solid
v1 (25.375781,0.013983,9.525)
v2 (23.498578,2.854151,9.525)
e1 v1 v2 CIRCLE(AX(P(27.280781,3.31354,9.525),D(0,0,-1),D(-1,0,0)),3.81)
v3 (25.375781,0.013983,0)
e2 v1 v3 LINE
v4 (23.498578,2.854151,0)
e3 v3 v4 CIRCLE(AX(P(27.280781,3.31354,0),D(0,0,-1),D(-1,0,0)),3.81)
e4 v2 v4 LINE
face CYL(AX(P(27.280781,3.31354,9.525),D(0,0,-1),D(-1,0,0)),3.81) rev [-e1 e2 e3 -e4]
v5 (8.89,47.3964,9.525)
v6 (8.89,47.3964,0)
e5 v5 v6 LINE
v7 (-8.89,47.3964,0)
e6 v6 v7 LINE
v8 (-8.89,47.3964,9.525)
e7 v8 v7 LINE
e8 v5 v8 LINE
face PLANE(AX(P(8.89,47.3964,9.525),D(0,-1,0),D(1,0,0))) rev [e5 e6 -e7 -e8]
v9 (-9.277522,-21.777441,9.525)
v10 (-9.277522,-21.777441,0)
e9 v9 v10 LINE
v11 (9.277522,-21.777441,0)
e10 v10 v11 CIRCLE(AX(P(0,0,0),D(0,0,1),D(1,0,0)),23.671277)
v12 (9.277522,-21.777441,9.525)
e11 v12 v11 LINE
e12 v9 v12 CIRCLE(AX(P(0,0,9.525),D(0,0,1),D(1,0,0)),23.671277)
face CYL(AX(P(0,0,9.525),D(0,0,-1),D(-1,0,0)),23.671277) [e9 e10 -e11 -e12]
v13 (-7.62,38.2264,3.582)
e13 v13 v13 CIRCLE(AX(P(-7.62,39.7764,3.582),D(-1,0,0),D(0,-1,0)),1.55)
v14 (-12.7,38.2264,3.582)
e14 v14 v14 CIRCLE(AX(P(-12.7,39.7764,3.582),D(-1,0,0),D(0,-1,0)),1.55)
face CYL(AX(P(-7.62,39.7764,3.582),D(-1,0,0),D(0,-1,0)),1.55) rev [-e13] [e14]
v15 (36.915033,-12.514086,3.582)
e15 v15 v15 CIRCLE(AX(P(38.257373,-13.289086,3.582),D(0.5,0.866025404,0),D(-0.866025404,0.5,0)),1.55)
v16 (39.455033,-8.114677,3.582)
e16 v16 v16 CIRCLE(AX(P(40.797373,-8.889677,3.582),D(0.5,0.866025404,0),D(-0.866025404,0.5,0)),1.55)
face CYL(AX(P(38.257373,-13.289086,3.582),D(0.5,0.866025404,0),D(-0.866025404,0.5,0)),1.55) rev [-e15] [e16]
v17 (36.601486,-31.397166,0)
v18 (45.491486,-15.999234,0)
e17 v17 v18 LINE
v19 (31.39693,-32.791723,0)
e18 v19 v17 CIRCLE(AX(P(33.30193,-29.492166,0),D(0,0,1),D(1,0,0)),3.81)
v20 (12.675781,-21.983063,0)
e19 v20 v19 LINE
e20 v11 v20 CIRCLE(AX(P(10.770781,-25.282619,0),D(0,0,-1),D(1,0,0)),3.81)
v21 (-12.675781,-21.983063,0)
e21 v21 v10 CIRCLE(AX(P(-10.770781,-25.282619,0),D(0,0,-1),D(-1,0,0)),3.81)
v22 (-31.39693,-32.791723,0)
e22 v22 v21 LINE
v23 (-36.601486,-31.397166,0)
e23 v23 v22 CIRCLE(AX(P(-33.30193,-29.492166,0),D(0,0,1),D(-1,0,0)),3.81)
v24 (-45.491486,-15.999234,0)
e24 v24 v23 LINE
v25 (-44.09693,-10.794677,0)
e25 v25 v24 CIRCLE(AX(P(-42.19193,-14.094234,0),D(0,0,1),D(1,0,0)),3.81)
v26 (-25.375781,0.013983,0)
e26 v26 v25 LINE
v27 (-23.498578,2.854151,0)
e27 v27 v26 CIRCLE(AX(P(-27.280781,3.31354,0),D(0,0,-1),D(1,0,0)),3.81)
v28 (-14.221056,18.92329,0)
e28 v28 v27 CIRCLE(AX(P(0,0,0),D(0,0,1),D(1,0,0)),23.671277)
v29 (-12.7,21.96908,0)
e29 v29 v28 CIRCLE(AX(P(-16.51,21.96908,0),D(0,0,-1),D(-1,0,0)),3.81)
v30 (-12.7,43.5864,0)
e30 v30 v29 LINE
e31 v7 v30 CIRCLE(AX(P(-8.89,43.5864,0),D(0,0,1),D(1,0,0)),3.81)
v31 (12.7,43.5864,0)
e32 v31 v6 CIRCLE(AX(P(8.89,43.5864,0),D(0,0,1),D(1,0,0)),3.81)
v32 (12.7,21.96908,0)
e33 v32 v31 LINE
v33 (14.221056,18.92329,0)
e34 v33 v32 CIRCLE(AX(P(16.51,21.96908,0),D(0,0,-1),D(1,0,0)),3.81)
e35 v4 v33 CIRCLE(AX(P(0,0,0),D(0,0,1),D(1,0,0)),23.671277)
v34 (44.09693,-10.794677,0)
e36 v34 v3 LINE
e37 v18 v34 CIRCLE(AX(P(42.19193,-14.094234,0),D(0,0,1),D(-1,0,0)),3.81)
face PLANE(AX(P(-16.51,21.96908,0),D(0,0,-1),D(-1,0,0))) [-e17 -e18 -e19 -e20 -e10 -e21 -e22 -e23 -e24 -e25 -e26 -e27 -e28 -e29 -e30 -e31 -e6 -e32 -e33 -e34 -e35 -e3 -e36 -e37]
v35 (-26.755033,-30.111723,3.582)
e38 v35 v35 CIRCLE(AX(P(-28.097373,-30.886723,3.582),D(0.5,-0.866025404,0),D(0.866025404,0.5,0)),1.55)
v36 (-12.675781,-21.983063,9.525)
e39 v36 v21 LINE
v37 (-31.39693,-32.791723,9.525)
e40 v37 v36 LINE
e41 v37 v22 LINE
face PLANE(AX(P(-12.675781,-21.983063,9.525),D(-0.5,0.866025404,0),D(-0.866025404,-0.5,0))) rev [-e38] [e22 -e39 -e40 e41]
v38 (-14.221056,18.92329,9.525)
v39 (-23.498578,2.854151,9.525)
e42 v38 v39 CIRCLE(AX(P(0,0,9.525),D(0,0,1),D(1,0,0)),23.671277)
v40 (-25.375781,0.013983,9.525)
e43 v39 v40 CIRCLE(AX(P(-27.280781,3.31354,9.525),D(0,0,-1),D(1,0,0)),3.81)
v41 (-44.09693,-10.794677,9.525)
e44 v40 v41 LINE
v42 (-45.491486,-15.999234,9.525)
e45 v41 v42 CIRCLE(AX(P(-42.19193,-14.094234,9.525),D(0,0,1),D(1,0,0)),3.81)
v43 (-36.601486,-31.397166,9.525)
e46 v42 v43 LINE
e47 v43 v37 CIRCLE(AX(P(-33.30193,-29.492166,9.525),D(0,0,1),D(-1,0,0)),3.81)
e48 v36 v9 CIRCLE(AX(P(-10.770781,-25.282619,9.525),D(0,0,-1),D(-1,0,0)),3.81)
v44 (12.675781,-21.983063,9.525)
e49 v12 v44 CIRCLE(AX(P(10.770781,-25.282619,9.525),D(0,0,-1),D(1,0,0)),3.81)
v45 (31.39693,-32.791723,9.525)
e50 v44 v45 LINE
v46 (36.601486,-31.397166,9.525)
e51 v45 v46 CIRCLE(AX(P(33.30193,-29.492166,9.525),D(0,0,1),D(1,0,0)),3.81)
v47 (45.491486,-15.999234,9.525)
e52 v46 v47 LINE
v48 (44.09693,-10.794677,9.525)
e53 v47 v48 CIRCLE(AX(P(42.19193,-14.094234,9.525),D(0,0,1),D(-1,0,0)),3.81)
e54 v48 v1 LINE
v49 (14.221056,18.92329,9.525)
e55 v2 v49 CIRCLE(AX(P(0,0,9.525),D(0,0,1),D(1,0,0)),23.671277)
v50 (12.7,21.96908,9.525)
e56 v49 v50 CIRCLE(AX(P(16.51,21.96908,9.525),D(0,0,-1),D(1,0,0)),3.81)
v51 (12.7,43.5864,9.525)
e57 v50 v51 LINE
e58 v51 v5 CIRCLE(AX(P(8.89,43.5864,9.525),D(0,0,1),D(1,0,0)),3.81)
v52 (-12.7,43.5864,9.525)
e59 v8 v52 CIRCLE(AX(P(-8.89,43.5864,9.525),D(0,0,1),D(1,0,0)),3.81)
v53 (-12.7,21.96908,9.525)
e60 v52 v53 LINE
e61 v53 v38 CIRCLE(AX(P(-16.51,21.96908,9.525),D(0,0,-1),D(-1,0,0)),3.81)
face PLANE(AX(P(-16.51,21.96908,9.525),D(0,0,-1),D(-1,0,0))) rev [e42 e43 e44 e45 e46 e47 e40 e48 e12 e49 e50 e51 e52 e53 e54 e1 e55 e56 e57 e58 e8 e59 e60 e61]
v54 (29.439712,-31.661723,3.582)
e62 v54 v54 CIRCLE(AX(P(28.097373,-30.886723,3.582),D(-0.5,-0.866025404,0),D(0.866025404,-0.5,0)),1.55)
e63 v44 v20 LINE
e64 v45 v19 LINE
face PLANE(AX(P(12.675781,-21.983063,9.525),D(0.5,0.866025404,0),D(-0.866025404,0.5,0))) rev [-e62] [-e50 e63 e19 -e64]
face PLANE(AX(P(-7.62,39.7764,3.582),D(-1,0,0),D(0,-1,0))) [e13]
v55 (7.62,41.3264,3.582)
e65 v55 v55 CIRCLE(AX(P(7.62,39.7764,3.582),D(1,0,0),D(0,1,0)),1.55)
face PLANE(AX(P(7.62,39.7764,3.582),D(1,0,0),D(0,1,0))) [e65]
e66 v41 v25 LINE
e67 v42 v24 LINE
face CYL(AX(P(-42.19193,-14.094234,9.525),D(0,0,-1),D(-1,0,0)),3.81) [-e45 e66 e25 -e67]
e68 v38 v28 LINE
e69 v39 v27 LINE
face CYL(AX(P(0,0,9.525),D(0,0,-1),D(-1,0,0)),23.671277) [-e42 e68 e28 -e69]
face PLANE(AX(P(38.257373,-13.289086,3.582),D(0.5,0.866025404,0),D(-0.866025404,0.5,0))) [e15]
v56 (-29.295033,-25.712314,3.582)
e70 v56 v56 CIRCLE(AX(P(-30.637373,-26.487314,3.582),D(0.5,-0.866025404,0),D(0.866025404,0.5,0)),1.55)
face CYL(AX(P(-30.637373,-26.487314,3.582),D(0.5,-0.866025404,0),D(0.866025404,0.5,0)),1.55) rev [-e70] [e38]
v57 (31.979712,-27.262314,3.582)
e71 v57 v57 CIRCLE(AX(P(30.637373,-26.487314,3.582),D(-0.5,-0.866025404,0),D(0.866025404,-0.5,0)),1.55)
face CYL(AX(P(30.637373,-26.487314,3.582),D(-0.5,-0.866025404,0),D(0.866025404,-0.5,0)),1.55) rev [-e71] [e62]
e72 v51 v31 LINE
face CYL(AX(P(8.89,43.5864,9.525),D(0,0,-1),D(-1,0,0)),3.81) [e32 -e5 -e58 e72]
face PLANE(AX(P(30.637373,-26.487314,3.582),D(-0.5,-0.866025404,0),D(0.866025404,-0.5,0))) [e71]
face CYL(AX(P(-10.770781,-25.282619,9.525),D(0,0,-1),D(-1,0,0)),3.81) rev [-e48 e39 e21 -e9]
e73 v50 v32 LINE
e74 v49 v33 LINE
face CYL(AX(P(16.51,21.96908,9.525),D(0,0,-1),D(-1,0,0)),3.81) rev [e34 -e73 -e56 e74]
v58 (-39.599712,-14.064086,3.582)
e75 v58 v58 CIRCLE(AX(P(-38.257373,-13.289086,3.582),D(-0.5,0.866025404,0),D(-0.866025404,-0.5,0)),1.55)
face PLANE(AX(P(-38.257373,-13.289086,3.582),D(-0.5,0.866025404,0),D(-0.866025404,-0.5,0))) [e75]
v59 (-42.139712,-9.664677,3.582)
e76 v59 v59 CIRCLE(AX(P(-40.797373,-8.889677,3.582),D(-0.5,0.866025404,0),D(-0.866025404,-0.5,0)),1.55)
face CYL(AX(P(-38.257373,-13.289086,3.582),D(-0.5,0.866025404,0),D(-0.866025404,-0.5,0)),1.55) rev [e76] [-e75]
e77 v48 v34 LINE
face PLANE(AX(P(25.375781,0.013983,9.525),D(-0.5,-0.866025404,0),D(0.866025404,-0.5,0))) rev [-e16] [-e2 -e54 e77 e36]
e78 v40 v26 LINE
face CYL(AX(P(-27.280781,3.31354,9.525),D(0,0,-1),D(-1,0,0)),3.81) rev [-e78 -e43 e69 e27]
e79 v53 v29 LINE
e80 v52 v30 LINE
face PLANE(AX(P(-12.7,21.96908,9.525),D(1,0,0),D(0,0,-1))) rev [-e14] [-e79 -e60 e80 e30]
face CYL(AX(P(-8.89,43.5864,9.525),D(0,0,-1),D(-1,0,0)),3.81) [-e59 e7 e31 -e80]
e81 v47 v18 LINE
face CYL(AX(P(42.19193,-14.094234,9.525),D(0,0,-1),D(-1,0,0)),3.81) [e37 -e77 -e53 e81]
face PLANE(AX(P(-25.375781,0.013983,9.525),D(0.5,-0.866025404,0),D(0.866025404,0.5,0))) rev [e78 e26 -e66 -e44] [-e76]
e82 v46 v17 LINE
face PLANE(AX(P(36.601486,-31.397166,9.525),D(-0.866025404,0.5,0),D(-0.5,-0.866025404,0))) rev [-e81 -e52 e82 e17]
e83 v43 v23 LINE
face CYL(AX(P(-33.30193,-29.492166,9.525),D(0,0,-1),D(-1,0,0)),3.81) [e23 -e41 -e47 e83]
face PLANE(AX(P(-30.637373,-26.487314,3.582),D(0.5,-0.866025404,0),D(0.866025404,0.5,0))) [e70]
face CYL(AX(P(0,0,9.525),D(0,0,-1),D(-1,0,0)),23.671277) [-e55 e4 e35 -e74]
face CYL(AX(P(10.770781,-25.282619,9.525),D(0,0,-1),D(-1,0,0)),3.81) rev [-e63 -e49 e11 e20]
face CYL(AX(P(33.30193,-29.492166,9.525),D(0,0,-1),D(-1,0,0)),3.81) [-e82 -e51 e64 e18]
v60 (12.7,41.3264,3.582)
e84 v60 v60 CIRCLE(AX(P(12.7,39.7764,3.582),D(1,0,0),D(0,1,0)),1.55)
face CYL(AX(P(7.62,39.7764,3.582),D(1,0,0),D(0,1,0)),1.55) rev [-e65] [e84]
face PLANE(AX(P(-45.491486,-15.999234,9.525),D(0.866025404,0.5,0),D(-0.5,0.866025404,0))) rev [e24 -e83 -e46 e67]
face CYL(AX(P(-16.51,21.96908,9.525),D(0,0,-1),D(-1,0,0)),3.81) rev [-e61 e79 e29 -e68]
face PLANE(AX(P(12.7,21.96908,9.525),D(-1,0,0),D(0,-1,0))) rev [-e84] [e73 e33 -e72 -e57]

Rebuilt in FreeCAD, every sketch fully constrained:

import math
import FreeCAD as App
import Part
import Sketcher

V = App.Vector
Q = App.Units.Quantity

doc = App.newDocument("Part")
params = doc.addObject("Spreadsheet::Sheet", "Params")
for row, (alias, value) in enumerate([
    ("sketch1_radius", "0.15 in"),
    ("sketch1_width", "0.7 in"),
    ("sketch1_length", "0.7 in"),
    ("pad1_length", "0.375 in"),
    ("pocket1_length", "0.2 in"),
    ("pocket2_length", "0.2 in"),
], start=1):
    params.set(f"A{row}", alias)
    params.set(f"B{row}", "=" + value)
    params.setAlias(f"B{row}", alias)

body = doc.addObject("PartDesign::Body", "Body")

# Sketch on XY plane
sketch1 = body.newObject("Sketcher::SketchObject", "Sketch")
sketch1.AttachmentSupport = (doc.getObject("XY_Plane"), [""])
sketch1.MapMode = "FlatFace"
sketch1.addGeometry(Part.LineSegment(V(12.7, 22, 0), V(12.7, 43.6, 0)), False)
sketch1.addGeometry(Part.ArcOfCircle(Part.Circle(V(8.9, 43.6, 0), V(0, 0, 1), 3.8), math.radians(0), math.radians(90)), False)
sketch1.addGeometry(Part.LineSegment(V(8.9, 47.4, 0), V(-8.9, 47.4, 0)), False)
sketch1.addGeometry(Part.ArcOfCircle(Part.Circle(V(-8.9, 43.6, 0), V(0, 0, 1), 3.8), math.radians(90), math.radians(180)), False)
sketch1.addGeometry(Part.LineSegment(V(-12.7, 43.6, 0), V(-12.7, 22, 0)), False)
sketch1.addGeometry(Part.ArcOfCircle(Part.Circle(V(-16.5, 22, 0), V(0, 0, 1), 3.8), math.radians(-53), math.radians(0)), False)
sketch1.addGeometry(Part.ArcOfCircle(Part.Circle(V(0, 0, 0), V(0, 0, 1), 23.7), math.radians(127), math.radians(173)), False)
sketch1.addGeometry(Part.ArcOfCircle(Part.Circle(V(-27.3, 3.3, 0), V(0, 0, 1), 3.8), math.radians(-60), math.radians(-7)), False)
sketch1.addGeometry(Part.LineSegment(V(-25.4, 0, 0), V(-44.1, -10.8, 0)), False)
sketch1.addGeometry(Part.ArcOfCircle(Part.Circle(V(-42.2, -14.1, 0), V(0, 0, 1), 3.8), math.radians(120), math.radians(210)), False)
sketch1.addGeometry(Part.LineSegment(V(-45.5, -16, 0), V(-36.6, -31.4, 0)), False)
sketch1.addGeometry(Part.ArcOfCircle(Part.Circle(V(-33.3, -29.5, 0), V(0, 0, 1), 3.8), math.radians(-150), math.radians(-60)), False)
sketch1.addGeometry(Part.LineSegment(V(-31.4, -32.8, 0), V(-12.7, -22, 0)), False)
sketch1.addGeometry(Part.ArcOfCircle(Part.Circle(V(-10.8, -25.3, 0), V(0, 0, 1), 3.8), math.radians(67), math.radians(120)), False)
sketch1.addGeometry(Part.ArcOfCircle(Part.Circle(V(0, 0, 0), V(0, 0, 1), 23.7), math.radians(-113), math.radians(-67)), False)
sketch1.addGeometry(Part.ArcOfCircle(Part.Circle(V(10.8, -25.3, 0), V(0, 0, 1), 3.8), math.radians(60), math.radians(113)), False)
sketch1.addGeometry(Part.LineSegment(V(12.7, -22, 0), V(31.4, -32.8, 0)), False)
sketch1.addGeometry(Part.ArcOfCircle(Part.Circle(V(33.3, -29.5, 0), V(0, 0, 1), 3.8), math.radians(-120), math.radians(-30)), False)
sketch1.addGeometry(Part.LineSegment(V(36.6, -31.4, 0), V(45.5, -16, 0)), False)
sketch1.addGeometry(Part.ArcOfCircle(Part.Circle(V(42.2, -14.1, 0), V(0, 0, 1), 3.8), math.radians(-30), math.radians(60)), False)
sketch1.addGeometry(Part.LineSegment(V(44.1, -10.8, 0), V(25.4, 0, 0)), False)
sketch1.addGeometry(Part.ArcOfCircle(Part.Circle(V(27.3, 3.3, 0), V(0, 0, 1), 3.8), math.radians(-173), math.radians(-120)), False)
sketch1.addGeometry(Part.ArcOfCircle(Part.Circle(V(0, 0, 0), V(0, 0, 1), 23.7), math.radians(7), math.radians(53)), False)
sketch1.addGeometry(Part.ArcOfCircle(Part.Circle(V(16.5, 22, 0), V(0, 0, 1), 3.8), math.radians(180), math.radians(233)), False)
sketch1.addConstraint(Sketcher.Constraint("Tangent", 0, 2, 1, 1))
sketch1.addConstraint(Sketcher.Constraint("Tangent", 1, 2, 2, 1))
sketch1.addConstraint(Sketcher.Constraint("Tangent", 2, 2, 3, 1))
sketch1.addConstraint(Sketcher.Constraint("Tangent", 3, 2, 4, 1))
sketch1.addConstraint(Sketcher.Constraint("Tangent", 4, 2, 5, 2))
sketch1.addConstraint(Sketcher.Constraint("Tangent", 5, 1, 6, 1))
sketch1.addConstraint(Sketcher.Constraint("Tangent", 6, 2, 7, 2))
sketch1.addConstraint(Sketcher.Constraint("Tangent", 7, 1, 8, 1))
sketch1.addConstraint(Sketcher.Constraint("Tangent", 8, 2, 9, 1))
sketch1.addConstraint(Sketcher.Constraint("Tangent", 9, 2, 10, 1))
sketch1.addConstraint(Sketcher.Constraint("Tangent", 10, 2, 11, 1))
sketch1.addConstraint(Sketcher.Constraint("Tangent", 11, 2, 12, 1))
sketch1.addConstraint(Sketcher.Constraint("Tangent", 12, 2, 13, 2))
sketch1.addConstraint(Sketcher.Constraint("Tangent", 13, 1, 14, 1))
sketch1.addConstraint(Sketcher.Constraint("Tangent", 14, 2, 15, 2))
sketch1.addConstraint(Sketcher.Constraint("Tangent", 15, 1, 16, 1))
sketch1.addConstraint(Sketcher.Constraint("Tangent", 16, 2, 17, 1))
sketch1.addConstraint(Sketcher.Constraint("Tangent", 17, 2, 18, 1))
sketch1.addConstraint(Sketcher.Constraint("Tangent", 18, 2, 19, 1))
sketch1.addConstraint(Sketcher.Constraint("Tangent", 19, 2, 20, 1))
sketch1.addConstraint(Sketcher.Constraint("Tangent", 20, 2, 21, 2))
sketch1.addConstraint(Sketcher.Constraint("Tangent", 21, 1, 22, 1))
sketch1.addConstraint(Sketcher.Constraint("Tangent", 22, 2, 23, 2))
sketch1.addConstraint(Sketcher.Constraint("Tangent", 23, 1, 0, 1))
sketch1.addConstraint(Sketcher.Constraint("Vertical", 0))
sketch1.addConstraint(Sketcher.Constraint("Horizontal", 2))
sketch1.addConstraint(Sketcher.Constraint("Vertical", 4))
sketch1.addConstraint(Sketcher.Constraint("Coincident", 6, 3, -1, 1))
sketch1.addConstraint(Sketcher.Constraint("Coincident", 14, 3, -1, 1))
sketch1.addConstraint(Sketcher.Constraint("Coincident", 22, 3, -1, 1))
sketch1.addConstraint(Sketcher.Constraint("Equal", 1, 3))
sketch1.addConstraint(Sketcher.Constraint("Equal", 3, 5))
sketch1.addConstraint(Sketcher.Constraint("Equal", 5, 7))
sketch1.addConstraint(Sketcher.Constraint("Equal", 7, 9))
sketch1.addConstraint(Sketcher.Constraint("Equal", 9, 11))
sketch1.addConstraint(Sketcher.Constraint("Equal", 11, 13))
sketch1.addConstraint(Sketcher.Constraint("Equal", 6, 14))
sketch1.addConstraint(Sketcher.Constraint("Equal", 13, 15))
sketch1.addConstraint(Sketcher.Constraint("Equal", 15, 17))
sketch1.addConstraint(Sketcher.Constraint("Equal", 17, 19))
sketch1.addConstraint(Sketcher.Constraint("Equal", 19, 21))
sketch1.addConstraint(Sketcher.Constraint("Equal", 14, 22))
sketch1.addConstraint(Sketcher.Constraint("Equal", 21, 23))
sketch1.addConstraint(Sketcher.Constraint("Symmetric", 11, 3, 17, 3, -2))
sketch1.addConstraint(Sketcher.Constraint("Symmetric", 9, 3, 19, 3, -2))
sketch1.addConstraint(Sketcher.Constraint("Perpendicular", 8, 10))
sketch1.addConstraint(Sketcher.Constraint("Perpendicular", 10, 12))
sketch1.addConstraint(Sketcher.Constraint("Perpendicular", 16, 18))
sketch1.addConstraint(Sketcher.Constraint("Perpendicular", 18, 20))
sketch1.addConstraint(Sketcher.Constraint("Horizontal", 5, 3, 23, 3))
sketch1.addConstraint(Sketcher.Constraint("Equal", 8, 12))
sketch1.addConstraint(Sketcher.Constraint("Radius", 1, Q("0.15 in")))
sketch1.addConstraint(Sketcher.Constraint("DistanceX", 2, 2, 2, 1, Q("0.7 in")))
sketch1.addConstraint(Sketcher.Constraint("Angle", 8, Q("-150 deg")))
sketch1.addConstraint(Sketcher.Constraint("Distance", 10, Q("0.7 in")))
sketch1.addConstraint(Sketcher.Constraint("DistanceY", -1, 1, 1, 3, Q("1.716 in")))
sketch1.addConstraint(Sketcher.Constraint("Radius", 6, Q("23.671277 mm")))
sketch1.addConstraint(Sketcher.Constraint("Distance", 8, Q("21.61732 mm")))
sketch1.setExpression("Constraints[51]", "Params.sketch1_radius")
sketch1.setExpression("Constraints[52]", "Params.sketch1_width")
sketch1.setExpression("Constraints[54]", "Params.sketch1_length")
pad1 = body.newObject("PartDesign::Pad", "Pad")
pad1.Profile = sketch1
pad1.setExpression("Length", "Params.pad1_length")

# Sketch on an angled plane
sketch2 = body.newObject("Sketcher::SketchObject", "Sketch001")
sketch2.Placement = App.Placement(V(-6.35, -10.998523, 0), App.Rotation(V(0.866025404, -0.5, 0), V(0, 0, 1), V(-0.5, -0.866025404, 0), "ZXY"))
sketch2.addGeometry(Part.Circle(V(39.8, 3.6, 0), V(0, 0, 1), 1.6), False)
sketch2.addConstraint(Sketcher.Constraint("Diameter", 0, Q("3.1 mm")))
sketch2.addConstraint(Sketcher.Constraint("DistanceX", -1, 1, 0, 3, Q("1.566 in")))
sketch2.addConstraint(Sketcher.Constraint("DistanceY", -1, 1, 0, 3, Q("3.582 mm")))
pocket1 = body.newObject("PartDesign::Pocket", "Pocket")
pocket1.Profile = sketch2
pocket1.setExpression("Length", "Params.pocket1_length")

# Sketch on an angled plane
sketch3 = body.newObject("Sketcher::SketchObject", "Sketch002")
sketch3.Placement = App.Placement(V(6.35, 10.998523, 0), App.Rotation(V(0.866025404, -0.5, 0), V(0, 0, -1), V(0.5, 0.866025404, 0), "ZXY"))
sketch3.addGeometry(Part.Circle(V(39.8, -3.6, 0), V(0, 0, 1), 1.6), False)
sketch3.addConstraint(Sketcher.Constraint("Diameter", 0, Q("3.1 mm")))
sketch3.addConstraint(Sketcher.Constraint("DistanceX", -1, 1, 0, 3, Q("1.566 in")))
sketch3.addConstraint(Sketcher.Constraint("DistanceY", 0, 3, -1, 1, Q("3.582 mm")))
pocket2 = body.newObject("PartDesign::Pocket", "Pocket001")
pocket2.Profile = sketch3
pocket2.setExpression("Length", "Params.pocket2_length")
doc.recompute()

polarpattern = body.newObject("PartDesign::PolarPattern", "PolarPattern")
polarpattern.Originals = [pocket1, pocket2]
polarpattern.Axis = (doc.getObject("Z_Axis"), [""])
polarpattern.Angle = 360
polarpattern.Occurrences = 3
body.Tip = polarpattern

doc.recompute()
